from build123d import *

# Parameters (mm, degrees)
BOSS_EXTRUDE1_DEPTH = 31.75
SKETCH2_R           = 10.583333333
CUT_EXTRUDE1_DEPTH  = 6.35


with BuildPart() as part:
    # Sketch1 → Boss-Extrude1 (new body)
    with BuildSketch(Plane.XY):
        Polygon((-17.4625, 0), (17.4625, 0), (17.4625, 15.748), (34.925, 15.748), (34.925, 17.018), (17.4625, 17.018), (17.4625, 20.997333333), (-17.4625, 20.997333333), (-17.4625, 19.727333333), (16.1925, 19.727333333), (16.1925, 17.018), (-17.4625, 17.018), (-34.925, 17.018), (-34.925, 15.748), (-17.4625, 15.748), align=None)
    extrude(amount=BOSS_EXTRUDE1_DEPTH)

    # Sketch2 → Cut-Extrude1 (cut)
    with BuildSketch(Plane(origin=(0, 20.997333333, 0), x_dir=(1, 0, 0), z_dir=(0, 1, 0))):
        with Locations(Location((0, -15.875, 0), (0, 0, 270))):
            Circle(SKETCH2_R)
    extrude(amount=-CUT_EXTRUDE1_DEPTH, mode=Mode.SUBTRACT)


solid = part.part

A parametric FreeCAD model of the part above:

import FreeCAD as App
import Part
import Sketcher
Q = App.Units.Quantity


def add_polygon(sketch, points):
    """Adds a closed chain of lines whose ends are joined by coincident constraints."""
    first, n = sketch.GeometryCount, len(points)
    for a, b in zip(points, points[1:] + points[:1]):
        sketch.addGeometry(Part.LineSegment(App.Vector(*a, 0), App.Vector(*b, 0)), False)
    for i in range(n):
        sketch.addConstraint(Sketcher.Constraint("Coincident", first + i, 2, first + (i + 1) % n, 1))

doc = App.newDocument("Part")
body = doc.addObject("PartDesign::Body", "Body")

# Sketch on XY plane
sketch1 = body.newObject("Sketcher::SketchObject", "Sketch")
sketch1.AttachmentSupport = (doc.getObject("XY_Plane"), [""])
sketch1.MapMode = "FlatFace"
add_polygon(sketch1, [(-17.4625, 0), (17.4625, 0), (17.4625, 15.748), (34.925, 15.748), (34.925, 17.018), (17.4625, 17.018), (17.4625, 20.997333), (-17.4625, 20.997333), (-17.4625, 19.727333), (16.1925, 19.727333), (16.1925, 17.018), (-34.925, 17.018), (-34.925, 15.748), (-17.4625, 15.748)])  # lines 0-13
sketch1.addConstraint([
    Sketcher.Constraint("Horizontal", 0),
    Sketcher.Constraint("Vertical", 1),
    Sketcher.Constraint("Horizontal", 2),
    Sketcher.Constraint("Vertical", 3),
    Sketcher.Constraint("Horizontal", 4),
    Sketcher.Constraint("Vertical", 5),
    Sketcher.Constraint("Horizontal", 6),
    Sketcher.Constraint("Vertical", 7),
    Sketcher.Constraint("Horizontal", 8),
    Sketcher.Constraint("Vertical", 9),
    Sketcher.Constraint("Horizontal", 10),
    Sketcher.Constraint("Vertical", 11),
    Sketcher.Constraint("Horizontal", 12),
    Sketcher.Constraint("Vertical", 13),
    Sketcher.Constraint("Symmetric", 0, 2, 13, 2, -1, 1),
    Sketcher.Constraint("Symmetric", 3, 2, 10, 2, -2),
    Sketcher.Constraint("Horizontal", 2, 2, 11, 2),
    Sketcher.Constraint("Vertical", 1, 2, 4, 2),
    Sketcher.Constraint("Vertical", 7, 2, 12, 2),
    Sketcher.Constraint("Equal", 3, 7),
    Sketcher.Constraint("DistanceY", 1, 1, 1, 2, Q("0.62 in")),
    Sketcher.Constraint("DistanceY", 3, 1, 3, 2, Q("0.05 in")),
    Sketcher.Constraint("DistanceX", 0, 1, 0, 2, Q("1.375 in")),
    Sketcher.Constraint("DistanceX", 2, 1, 2, 2, Q("0.6875 in")),
    Sketcher.Constraint("DistanceX", 8, 1, 8, 2, Q("1.325 in")),
    Sketcher.Constraint("DistanceY", 5, 1, 5, 2, Q("3.979333 mm")),
])
pad1 = body.newObject("PartDesign::Pad", "Pad")
pad1.Profile = sketch1
pad1.Length = Q("1.25 in")

# Sketch on XZ plane
sketch2 = body.newObject("Sketcher::SketchObject", "Sketch001")
sketch2.AttachmentSupport = (doc.getObject("XZ_Plane"), [""])
sketch2.MapMode = "FlatFace"
sketch2.AttachmentOffset = App.Placement(App.Vector(0, 0, -20.997333), App.Rotation())
sketch2.addGeometry(Part.Circle(App.Vector(0, 15.875, 0), App.Vector(0, 0, 1), 10.583333), False)
sketch2.addConstraint([
    Sketcher.Constraint("PointOnObject", 0, 3, -2),
    Sketcher.Constraint("DistanceY", -1, 1, 0, 3, Q("0.625 in")),
    Sketcher.Constraint("Diameter", 0, Q("21.166667 mm")),
])
pocket1 = body.newObject("PartDesign::Pocket", "Pocket")
pocket1.Profile = sketch2
pocket1.Length = Q("0.25 in")
pocket1.Reversed = True

doc.recompute()
